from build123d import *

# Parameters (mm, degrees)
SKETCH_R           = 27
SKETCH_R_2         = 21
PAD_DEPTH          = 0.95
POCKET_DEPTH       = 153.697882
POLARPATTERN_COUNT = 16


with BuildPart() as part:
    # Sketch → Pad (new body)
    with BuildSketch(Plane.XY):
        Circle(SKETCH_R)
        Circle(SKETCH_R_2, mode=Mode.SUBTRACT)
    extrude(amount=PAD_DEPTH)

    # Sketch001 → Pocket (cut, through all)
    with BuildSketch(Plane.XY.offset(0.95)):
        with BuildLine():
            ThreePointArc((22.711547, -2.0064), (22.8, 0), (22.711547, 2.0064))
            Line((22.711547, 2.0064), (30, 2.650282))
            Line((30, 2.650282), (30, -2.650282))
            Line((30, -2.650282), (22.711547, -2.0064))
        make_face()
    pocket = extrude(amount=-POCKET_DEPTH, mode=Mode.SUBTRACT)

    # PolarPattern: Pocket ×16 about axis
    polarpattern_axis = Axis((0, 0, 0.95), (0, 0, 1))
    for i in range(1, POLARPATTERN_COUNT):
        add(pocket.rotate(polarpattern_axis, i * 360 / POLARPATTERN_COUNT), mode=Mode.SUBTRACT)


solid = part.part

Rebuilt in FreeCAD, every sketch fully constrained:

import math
import FreeCAD as App
import Part
import Sketcher

V = App.Vector
Q = App.Units.Quantity

doc = App.newDocument("Part")
body = doc.addObject("PartDesign::Body", "Body")

sketch1 = body.newObject("Sketcher::SketchObject", "Sketch")
sketch1.AttachmentSupport = (doc.getObject("XY_Plane"), [""])
sketch1.MapMode = "FlatFace"
sketch1.addGeometry(Part.Circle(V(0, 0, 0), V(0, 0, 1), 27), False)
sketch1.addGeometry(Part.Circle(V(0, 0, 0), V(0, 0, 1), 21), False)
sketch1.addConstraint(Sketcher.Constraint("Coincident", 0, 3, -1, 1))
sketch1.addConstraint(Sketcher.Constraint("Coincident", 1, 3, -1, 1))
sketch1.addConstraint(Sketcher.Constraint("Diameter", 0, Q("54 mm")))
sketch1.addConstraint(Sketcher.Constraint("Diameter", 1, Q("42 mm")))
pad1 = body.newObject("PartDesign::Pad", "Pad")
pad1.Profile = sketch1
pad1.Length = 0.95

sketch2 = body.newObject("Sketcher::SketchObject", "Sketch001")
sketch2.AttachmentSupport = (doc.getObject("XY_Plane"), [""])
sketch2.MapMode = "FlatFace"
sketch2.AttachmentOffset = App.Placement(V(0, 0, 0.95), App.Rotation())
sketch2.addGeometry(Part.ArcOfCircle(Part.Circle(V(0, 0, 0), V(0, 0, 1), 22.8), math.radians(-5.05), math.radians(5.05)), False)
sketch2.addGeometry(Part.LineSegment(V(22.7, -2, 0), V(30, -2.7, 0)), False)
sketch2.addGeometry(Part.LineSegment(V(30, -2.7, 0), V(30, 2.7, 0)), False)
sketch2.addGeometry(Part.LineSegment(V(30, 2.7, 0), V(22.7, 2, 0)), False)
sketch2.addConstraint(Sketcher.Constraint("Coincident", 0, 1, 1, 1))
sketch2.addConstraint(Sketcher.Constraint("Coincident", 1, 2, 2, 1))
sketch2.addConstraint(Sketcher.Constraint("Coincident", 2, 2, 3, 1))
sketch2.addConstraint(Sketcher.Constraint("Coincident", 3, 2, 0, 2))
sketch2.addConstraint(Sketcher.Constraint("Vertical", 2))
sketch2.addConstraint(Sketcher.Constraint("Symmetric", 0, 1, 3, 2, -1))
sketch2.addConstraint(Sketcher.Constraint("Equal", 1, 3))
sketch2.addConstraint(Sketcher.Constraint("DistanceX", -1, 1, 1, 2, Q("30 mm")))
sketch2.addConstraint(Sketcher.Constraint("Radius", 0, Q("22.800046 mm")))
sketch2.addConstraint(Sketcher.Constraint("DistanceY", 0, 1, -1, 1, Q("2.0064 mm")))
sketch2.addConstraint(Sketcher.Constraint("Distance", 1, Q("7.316839 mm")))
sketch2.addConstraint(Sketcher.Constraint("DistanceY", 2, 1, 2, 2, Q("5.300564 mm")))
pocket1 = body.newObject("PartDesign::Pocket", "Pocket")
pocket1.Profile = sketch2
pocket1.Type = "ThroughAll"
doc.recompute()

polarpattern = body.newObject("PartDesign::PolarPattern", "PolarPattern")
polarpattern.Originals = [pocket1]
polarpattern.Axis = (doc.getObject("Z_Axis"), [""])
polarpattern.Angle = 360
polarpattern.Occurrences = 16
body.Tip = polarpattern

doc.recompute()
